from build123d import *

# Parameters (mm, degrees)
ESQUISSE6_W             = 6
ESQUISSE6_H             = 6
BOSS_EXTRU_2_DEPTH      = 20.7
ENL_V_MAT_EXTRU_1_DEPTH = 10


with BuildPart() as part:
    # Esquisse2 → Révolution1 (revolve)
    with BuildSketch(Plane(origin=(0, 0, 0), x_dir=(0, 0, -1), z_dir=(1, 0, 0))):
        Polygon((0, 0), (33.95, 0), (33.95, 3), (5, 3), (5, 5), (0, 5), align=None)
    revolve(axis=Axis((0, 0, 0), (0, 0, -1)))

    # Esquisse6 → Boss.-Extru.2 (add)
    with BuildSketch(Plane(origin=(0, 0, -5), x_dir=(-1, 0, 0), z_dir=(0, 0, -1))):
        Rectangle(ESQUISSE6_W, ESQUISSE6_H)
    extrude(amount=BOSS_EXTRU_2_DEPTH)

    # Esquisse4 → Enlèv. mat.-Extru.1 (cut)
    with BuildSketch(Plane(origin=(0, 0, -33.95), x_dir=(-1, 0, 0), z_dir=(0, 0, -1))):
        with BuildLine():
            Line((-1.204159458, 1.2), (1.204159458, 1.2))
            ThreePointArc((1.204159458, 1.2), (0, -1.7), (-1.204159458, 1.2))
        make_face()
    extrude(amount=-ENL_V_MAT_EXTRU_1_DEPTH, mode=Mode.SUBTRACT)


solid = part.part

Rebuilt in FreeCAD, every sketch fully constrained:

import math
import FreeCAD as App
import Part
import Sketcher
Q = App.Units.Quantity


def add_polygon(sketch, points):
    """Adds a closed chain of lines whose ends are joined by coincident constraints."""
    first, n = sketch.GeometryCount, len(points)
    for a, b in zip(points, points[1:] + points[:1]):
        sketch.addGeometry(Part.LineSegment(App.Vector(*a, 0), App.Vector(*b, 0)), False)
    for i in range(n):
        sketch.addConstraint(Sketcher.Constraint("Coincident", first + i, 2, first + (i + 1) % n, 1))

doc = App.newDocument("Part")
body = doc.addObject("PartDesign::Body", "Body")

# Sketch on YZ plane
sketch1 = body.newObject("Sketcher::SketchObject", "Sketch")
sketch1.AttachmentSupport = (doc.getObject("YZ_Plane"), [""])
sketch1.MapMode = "FlatFace"
add_polygon(sketch1, [(0, 0), (0, -34), (3, -34), (3, -5), (5, -5), (5, 0)])  # lines 0-5
sketch1.addConstraint([
    Sketcher.Constraint("Vertical", 0),
    Sketcher.Constraint("Horizontal", 1),
    Sketcher.Constraint("Vertical", 2),
    Sketcher.Constraint("Horizontal", 3),
    Sketcher.Constraint("Vertical", 4),
    Sketcher.Constraint("Horizontal", 5),
    Sketcher.Constraint("Coincident", 5, 2, -1, 1),
    Sketcher.Constraint("Equal", 5, 4),
    Sketcher.Constraint("DistanceX", 1, 1, 1, 2, Q("3 mm")),
    Sketcher.Constraint("DistanceX", 3, 1, 3, 2, Q("2 mm")),
    Sketcher.Constraint("DistanceY", 0, 2, 0, 1, Q("33.95 mm")),
])
revolution = body.newObject("PartDesign::Revolution", "Revolution")
revolution.Profile = sketch1
revolution.ReferenceAxis = (sketch1, ["V_Axis"])
revolution.Angle = 360

# Sketch on XY plane
sketch2 = body.newObject("Sketcher::SketchObject", "Sketch001")
sketch2.AttachmentSupport = (doc.getObject("XY_Plane"), [""])
sketch2.MapMode = "FlatFace"
sketch2.AttachmentOffset = App.Placement(App.Vector(0, 0, -5), App.Rotation())
add_polygon(sketch2, [(3, 3), (3, -3), (-3, -3), (-3, 3)])  # lines 0-3
sketch2.addConstraint([
    Sketcher.Constraint("Vertical", 0),
    Sketcher.Constraint("Horizontal", 1),
    Sketcher.Constraint("Vertical", 2),
    Sketcher.Constraint("Horizontal", 3),
    Sketcher.Constraint("Symmetric", 0, 2, 2, 2, -1, 1),
    Sketcher.Constraint("Equal", 3, 0),
    Sketcher.Constraint("DistanceX", 1, 2, 1, 1, Q("6 mm")),
])
pad1 = body.newObject("PartDesign::Pad", "Pad")
pad1.Profile = sketch2
pad1.Length = 20.7
pad1.Reversed = True

# Sketch on XY plane
sketch3 = body.newObject("Sketcher::SketchObject", "Sketch002")
sketch3.AttachmentSupport = (doc.getObject("XY_Plane"), [""])
sketch3.MapMode = "FlatFace"
sketch3.AttachmentOffset = App.Placement(App.Vector(0, 0, -33.95), App.Rotation())
sketch3.addGeometry([
    Part.LineSegment(App.Vector(-1.2, 1.2, 0), App.Vector(1.2, 1.2, 0)),
    Part.ArcOfCircle(Part.Circle(App.Vector(0, 0, 0), App.Vector(0, 0, 1), 1.7), math.radians(135), math.radians(405)),
], False)
sketch3.addConstraint([
    Sketcher.Constraint("Coincident", 0, 1, 1, 1),
    Sketcher.Constraint("Coincident", 1, 2, 0, 2),
    Sketcher.Constraint("Horizontal", 0),
    Sketcher.Constraint("Coincident", 1, 3, -1, 1),
    Sketcher.Constraint("Radius", 1, Q("1.7 mm")),
    Sketcher.Constraint("DistanceY", -1, 1, 0, 1, Q("1.2 mm")),
])
pocket1 = body.newObject("PartDesign::Pocket", "Pocket")
pocket1.Profile = sketch3
pocket1.Length = 10
pocket1.Reversed = True

doc.recompute()
